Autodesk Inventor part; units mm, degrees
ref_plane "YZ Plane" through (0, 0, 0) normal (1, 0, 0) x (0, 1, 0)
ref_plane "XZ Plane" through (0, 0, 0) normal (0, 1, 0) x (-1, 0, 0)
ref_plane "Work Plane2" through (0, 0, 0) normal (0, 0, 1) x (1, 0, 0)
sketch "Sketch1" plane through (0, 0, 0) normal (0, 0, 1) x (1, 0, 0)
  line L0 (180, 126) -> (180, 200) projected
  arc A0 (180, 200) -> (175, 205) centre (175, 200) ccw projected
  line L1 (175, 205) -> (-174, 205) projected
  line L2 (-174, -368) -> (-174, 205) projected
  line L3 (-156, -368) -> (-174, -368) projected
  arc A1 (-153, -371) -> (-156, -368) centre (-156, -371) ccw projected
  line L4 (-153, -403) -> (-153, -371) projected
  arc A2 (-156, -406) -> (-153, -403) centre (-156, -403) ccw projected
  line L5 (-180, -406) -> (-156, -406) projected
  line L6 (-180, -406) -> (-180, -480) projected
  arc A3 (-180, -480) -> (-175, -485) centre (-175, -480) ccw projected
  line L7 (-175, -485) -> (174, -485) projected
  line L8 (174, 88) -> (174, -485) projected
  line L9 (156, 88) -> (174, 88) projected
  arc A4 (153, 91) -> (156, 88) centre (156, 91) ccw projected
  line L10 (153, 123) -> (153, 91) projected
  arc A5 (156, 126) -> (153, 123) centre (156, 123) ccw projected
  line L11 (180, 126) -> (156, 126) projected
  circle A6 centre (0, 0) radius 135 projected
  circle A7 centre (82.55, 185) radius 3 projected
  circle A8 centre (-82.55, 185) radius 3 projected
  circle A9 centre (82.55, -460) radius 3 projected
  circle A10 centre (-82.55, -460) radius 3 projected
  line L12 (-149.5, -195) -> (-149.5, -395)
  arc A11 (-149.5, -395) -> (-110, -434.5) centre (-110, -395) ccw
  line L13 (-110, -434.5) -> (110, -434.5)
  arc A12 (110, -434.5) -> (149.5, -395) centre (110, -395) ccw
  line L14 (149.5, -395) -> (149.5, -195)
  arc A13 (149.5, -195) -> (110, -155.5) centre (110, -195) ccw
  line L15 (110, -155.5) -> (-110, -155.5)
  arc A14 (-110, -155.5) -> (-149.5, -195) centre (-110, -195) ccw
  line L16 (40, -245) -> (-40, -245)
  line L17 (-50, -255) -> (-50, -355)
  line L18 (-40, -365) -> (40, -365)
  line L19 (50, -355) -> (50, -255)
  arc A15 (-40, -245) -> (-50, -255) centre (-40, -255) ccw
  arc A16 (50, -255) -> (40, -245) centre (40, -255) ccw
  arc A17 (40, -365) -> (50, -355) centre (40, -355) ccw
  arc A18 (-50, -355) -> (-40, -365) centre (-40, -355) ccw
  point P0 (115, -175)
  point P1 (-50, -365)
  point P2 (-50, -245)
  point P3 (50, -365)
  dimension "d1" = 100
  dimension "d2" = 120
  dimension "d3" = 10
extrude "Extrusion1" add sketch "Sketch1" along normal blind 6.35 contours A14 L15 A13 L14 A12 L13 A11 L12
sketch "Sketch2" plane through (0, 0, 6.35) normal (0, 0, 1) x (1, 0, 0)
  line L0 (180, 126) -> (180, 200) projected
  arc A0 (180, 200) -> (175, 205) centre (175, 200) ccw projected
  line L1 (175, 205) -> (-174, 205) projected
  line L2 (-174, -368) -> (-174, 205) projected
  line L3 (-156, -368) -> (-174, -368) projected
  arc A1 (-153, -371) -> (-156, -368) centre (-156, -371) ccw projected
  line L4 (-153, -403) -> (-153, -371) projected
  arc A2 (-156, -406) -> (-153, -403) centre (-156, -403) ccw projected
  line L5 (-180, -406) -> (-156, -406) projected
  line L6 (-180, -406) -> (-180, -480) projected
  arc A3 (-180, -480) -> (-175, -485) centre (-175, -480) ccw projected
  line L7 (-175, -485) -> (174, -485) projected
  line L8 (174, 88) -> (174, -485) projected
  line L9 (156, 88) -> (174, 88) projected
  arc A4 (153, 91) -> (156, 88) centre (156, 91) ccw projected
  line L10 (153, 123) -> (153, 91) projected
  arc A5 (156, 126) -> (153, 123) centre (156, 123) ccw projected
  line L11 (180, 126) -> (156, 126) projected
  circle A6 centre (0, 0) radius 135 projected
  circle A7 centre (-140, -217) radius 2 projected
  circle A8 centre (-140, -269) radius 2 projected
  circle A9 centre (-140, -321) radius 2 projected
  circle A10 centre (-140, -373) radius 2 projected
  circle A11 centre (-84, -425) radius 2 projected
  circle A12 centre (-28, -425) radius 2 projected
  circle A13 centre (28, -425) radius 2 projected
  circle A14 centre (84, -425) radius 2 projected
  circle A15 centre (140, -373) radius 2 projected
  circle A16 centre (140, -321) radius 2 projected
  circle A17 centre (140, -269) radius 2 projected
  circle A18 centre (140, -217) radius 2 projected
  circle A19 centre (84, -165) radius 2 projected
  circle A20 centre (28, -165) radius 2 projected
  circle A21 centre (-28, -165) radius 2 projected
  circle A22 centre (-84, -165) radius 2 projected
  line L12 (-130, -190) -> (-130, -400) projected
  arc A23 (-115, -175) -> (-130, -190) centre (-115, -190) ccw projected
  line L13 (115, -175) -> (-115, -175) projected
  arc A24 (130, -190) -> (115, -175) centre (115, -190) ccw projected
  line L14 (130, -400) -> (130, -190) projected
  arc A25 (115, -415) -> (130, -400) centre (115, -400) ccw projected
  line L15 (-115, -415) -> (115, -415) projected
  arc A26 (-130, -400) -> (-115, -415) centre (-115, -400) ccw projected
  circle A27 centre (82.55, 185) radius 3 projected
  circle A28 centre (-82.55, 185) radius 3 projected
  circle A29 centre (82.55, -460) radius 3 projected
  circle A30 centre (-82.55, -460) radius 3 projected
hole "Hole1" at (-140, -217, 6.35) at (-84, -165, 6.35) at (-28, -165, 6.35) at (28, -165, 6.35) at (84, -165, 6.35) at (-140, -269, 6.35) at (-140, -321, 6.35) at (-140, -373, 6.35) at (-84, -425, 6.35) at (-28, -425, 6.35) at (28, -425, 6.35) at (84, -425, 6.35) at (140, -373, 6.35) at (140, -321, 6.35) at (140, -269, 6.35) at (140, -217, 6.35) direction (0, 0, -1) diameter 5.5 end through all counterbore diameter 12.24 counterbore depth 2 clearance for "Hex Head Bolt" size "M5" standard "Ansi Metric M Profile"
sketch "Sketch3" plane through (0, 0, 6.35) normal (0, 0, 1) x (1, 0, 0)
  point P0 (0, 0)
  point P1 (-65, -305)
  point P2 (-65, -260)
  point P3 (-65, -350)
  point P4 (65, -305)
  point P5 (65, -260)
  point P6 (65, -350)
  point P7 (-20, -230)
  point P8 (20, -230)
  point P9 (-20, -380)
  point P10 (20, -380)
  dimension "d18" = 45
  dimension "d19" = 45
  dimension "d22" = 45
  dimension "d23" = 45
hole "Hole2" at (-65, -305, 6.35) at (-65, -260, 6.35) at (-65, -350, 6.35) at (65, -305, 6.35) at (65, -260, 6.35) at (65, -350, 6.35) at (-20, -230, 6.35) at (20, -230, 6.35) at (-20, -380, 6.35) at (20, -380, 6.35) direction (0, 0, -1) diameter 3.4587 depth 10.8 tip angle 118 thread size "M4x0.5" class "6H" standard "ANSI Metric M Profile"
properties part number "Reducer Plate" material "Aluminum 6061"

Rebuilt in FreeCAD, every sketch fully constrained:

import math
import FreeCAD as App
import Part
import Sketcher

V = App.Vector

doc = App.newDocument("Part")
body = doc.addObject("PartDesign::Body", "Body")

# Sketch on XY plane
sketch1 = body.newObject("Sketcher::SketchObject", "Sketch")
sketch1.AttachmentSupport = (doc.getObject("XY_Plane"), [""])
sketch1.MapMode = "FlatFace"
sketch1.addGeometry(Part.ArcOfCircle(Part.Circle(V(-110, -195, 0), V(0, 0, 1), 39.5), math.radians(90), math.radians(180)), False)
sketch1.addGeometry(Part.LineSegment(V(-149.5, -195, 0), V(-149.5, -395, 0)), False)
sketch1.addGeometry(Part.ArcOfCircle(Part.Circle(V(-110, -395, 0), V(0, 0, 1), 39.5), math.radians(180), math.radians(270)), False)
sketch1.addGeometry(Part.LineSegment(V(-110, -434.5, 0), V(110, -434.5, 0)), False)
sketch1.addGeometry(Part.ArcOfCircle(Part.Circle(V(110, -395, 0), V(0, 0, 1), 39.5), math.radians(-90), math.radians(0)), False)
sketch1.addGeometry(Part.LineSegment(V(149.5, -395, 0), V(149.5, -195, 0)), False)
sketch1.addGeometry(Part.ArcOfCircle(Part.Circle(V(110, -195, 0), V(0, 0, 1), 39.5), math.radians(0), math.radians(90)), False)
sketch1.addGeometry(Part.LineSegment(V(110, -155.5, 0), V(-110, -155.5, 0)), False)
sketch1.addGeometry(Part.LineSegment(V(-40, -245, 0), V(40, -245, 0)), False)
sketch1.addGeometry(Part.ArcOfCircle(Part.Circle(V(40, -255, 0), V(0, 0, 1), 10), math.radians(0), math.radians(90)), False)
sketch1.addGeometry(Part.LineSegment(V(50, -255, 0), V(50, -355, 0)), False)
sketch1.addGeometry(Part.ArcOfCircle(Part.Circle(V(40, -355, 0), V(0, 0, 1), 10), math.radians(-90), math.radians(0)), False)
sketch1.addGeometry(Part.LineSegment(V(40, -365, 0), V(-40, -365, 0)), False)
sketch1.addGeometry(Part.ArcOfCircle(Part.Circle(V(-40, -355, 0), V(0, 0, 1), 10), math.radians(180), math.radians(270)), False)
sketch1.addGeometry(Part.LineSegment(V(-50, -355, 0), V(-50, -255, 0)), False)
sketch1.addGeometry(Part.ArcOfCircle(Part.Circle(V(-40, -255, 0), V(0, 0, 1), 10), math.radians(90), math.radians(180)), False)
sketch1.addConstraint(Sketcher.Constraint("Tangent", 0, 2, 1, 1))
sketch1.addConstraint(Sketcher.Constraint("Tangent", 1, 2, 2, 1))
sketch1.addConstraint(Sketcher.Constraint("Tangent", 2, 2, 3, 1))
sketch1.addConstraint(Sketcher.Constraint("Tangent", 3, 2, 4, 1))
sketch1.addConstraint(Sketcher.Constraint("Tangent", 4, 2, 5, 1))
sketch1.addConstraint(Sketcher.Constraint("Tangent", 5, 2, 6, 1))
sketch1.addConstraint(Sketcher.Constraint("Tangent", 6, 2, 7, 1))
sketch1.addConstraint(Sketcher.Constraint("Tangent", 7, 2, 0, 1))
sketch1.addConstraint(Sketcher.Constraint("Tangent", 8, 2, 9, 2))
sketch1.addConstraint(Sketcher.Constraint("Tangent", 9, 1, 10, 1))
sketch1.addConstraint(Sketcher.Constraint("Tangent", 10, 2, 11, 2))
sketch1.addConstraint(Sketcher.Constraint("Tangent", 11, 1, 12, 1))
sketch1.addConstraint(Sketcher.Constraint("Tangent", 12, 2, 13, 2))
sketch1.addConstraint(Sketcher.Constraint("Tangent", 13, 1, 14, 1))
sketch1.addConstraint(Sketcher.Constraint("Tangent", 14, 2, 15, 2))
sketch1.addConstraint(Sketcher.Constraint("Tangent", 15, 1, 8, 1))
sketch1.addConstraint(Sketcher.Constraint("Vertical", 1))
sketch1.addConstraint(Sketcher.Constraint("Horizontal", 3))
sketch1.addConstraint(Sketcher.Constraint("Vertical", 5))
sketch1.addConstraint(Sketcher.Constraint("Horizontal", 7))
sketch1.addConstraint(Sketcher.Constraint("Horizontal", 8))
sketch1.addConstraint(Sketcher.Constraint("Vertical", 10))
sketch1.addConstraint(Sketcher.Constraint("Horizontal", 12))
sketch1.addConstraint(Sketcher.Constraint("Vertical", 14))
sketch1.addConstraint(Sketcher.Constraint("Equal", 0, 2))
sketch1.addConstraint(Sketcher.Constraint("Equal", 2, 4))
sketch1.addConstraint(Sketcher.Constraint("Equal", 4, 6))
sketch1.addConstraint(Sketcher.Constraint("Equal", 9, 11))
sketch1.addConstraint(Sketcher.Constraint("Equal", 11, 13))
sketch1.addConstraint(Sketcher.Constraint("Equal", 13, 15))
sketch1.addConstraint(Sketcher.Constraint("Radius", 9, 10.0))
sketch1.addConstraint(Sketcher.Constraint("DistanceY", 10, 2, 10, 1, 100.0))
sketch1.addConstraint(Sketcher.Constraint("DistanceX", 14, 2, 9, 1, 100.0))
sketch1.addConstraint(Sketcher.Constraint("Radius", 0, 39.5))
sketch1.addConstraint(Sketcher.Constraint("DistanceX", 3, 1, 3, 2, 220.0))
sketch1.addConstraint(Sketcher.Constraint("DistanceY", 1, 2, 1, 1, 200.0))
sketch1.addConstraint(Sketcher.Constraint("DistanceX", 0, 3, -1, 1, 110.0))
sketch1.addConstraint(Sketcher.Constraint("DistanceY", 0, 3, -1, 1, 195.0))
sketch1.addConstraint(Sketcher.Constraint("DistanceX", -1, 1, 9, 3, 40.0))
sketch1.addConstraint(Sketcher.Constraint("DistanceY", 9, 3, -1, 1, 255.0))
pad1 = body.newObject("PartDesign::Pad", "Pad")
pad1.Profile = sketch1
pad1.Length = 6.35

# Sketch on XY plane
sketch2 = body.newObject("Sketcher::SketchObject", "Sketch001")
sketch2.AttachmentSupport = (doc.getObject("XY_Plane"), [""])
sketch2.MapMode = "FlatFace"
sketch2.AttachmentOffset = App.Placement(V(0, 0, 6.35), App.Rotation())
sketch2.addGeometry(Part.Circle(V(-140, -217, 0), V(0, 0, 1), 2.75), False)
sketch2.addGeometry(Part.Circle(V(-84, -165, 0), V(0, 0, 1), 2.75), False)
sketch2.addGeometry(Part.Circle(V(-28, -165, 0), V(0, 0, 1), 2.75), False)
sketch2.addGeometry(Part.Circle(V(28, -165, 0), V(0, 0, 1), 2.75), False)
sketch2.addGeometry(Part.Circle(V(84, -165, 0), V(0, 0, 1), 2.75), False)
sketch2.addGeometry(Part.Circle(V(-140, -269, 0), V(0, 0, 1), 2.75), False)
sketch2.addGeometry(Part.Circle(V(-140, -321, 0), V(0, 0, 1), 2.75), False)
sketch2.addGeometry(Part.Circle(V(-140, -373, 0), V(0, 0, 1), 2.75), False)
sketch2.addGeometry(Part.Circle(V(-84, -425, 0), V(0, 0, 1), 2.75), False)
sketch2.addGeometry(Part.Circle(V(-28, -425, 0), V(0, 0, 1), 2.75), False)
sketch2.addGeometry(Part.Circle(V(28, -425, 0), V(0, 0, 1), 2.75), False)
sketch2.addGeometry(Part.Circle(V(84, -425, 0), V(0, 0, 1), 2.75), False)
sketch2.addGeometry(Part.Circle(V(140, -373, 0), V(0, 0, 1), 2.75), False)
sketch2.addGeometry(Part.Circle(V(140, -321, 0), V(0, 0, 1), 2.75), False)
sketch2.addGeometry(Part.Circle(V(140, -269, 0), V(0, 0, 1), 2.75), False)
sketch2.addGeometry(Part.Circle(V(140, -217, 0), V(0, 0, 1), 2.75), False)
sketch2.addConstraint(Sketcher.Constraint("Equal", 0, 1))
sketch2.addConstraint(Sketcher.Constraint("Equal", 1, 2))
sketch2.addConstraint(Sketcher.Constraint("Equal", 2, 3))
sketch2.addConstraint(Sketcher.Constraint("Equal", 3, 4))
sketch2.addConstraint(Sketcher.Constraint("Equal", 4, 5))
sketch2.addConstraint(Sketcher.Constraint("Equal", 5, 6))
sketch2.addConstraint(Sketcher.Constraint("Equal", 6, 7))
sketch2.addConstraint(Sketcher.Constraint("Equal", 7, 8))
sketch2.addConstraint(Sketcher.Constraint("Equal", 8, 9))
sketch2.addConstraint(Sketcher.Constraint("Equal", 9, 10))
sketch2.addConstraint(Sketcher.Constraint("Equal", 10, 11))
sketch2.addConstraint(Sketcher.Constraint("Equal", 11, 12))
sketch2.addConstraint(Sketcher.Constraint("Equal", 12, 13))
sketch2.addConstraint(Sketcher.Constraint("Equal", 13, 14))
sketch2.addConstraint(Sketcher.Constraint("Equal", 14, 15))
sketch2.addConstraint(Sketcher.Constraint("Symmetric", 2, 3, 3, 3, -2))
sketch2.addConstraint(Sketcher.Constraint("Symmetric", 1, 3, 4, 3, -2))
sketch2.addConstraint(Sketcher.Constraint("Symmetric", 9, 3, 10, 3, -2))
sketch2.addConstraint(Sketcher.Constraint("Symmetric", 8, 3, 11, 3, -2))
sketch2.addConstraint(Sketcher.Constraint("Symmetric", 7, 3, 12, 3, -2))
sketch2.addConstraint(Sketcher.Constraint("Symmetric", 6, 3, 13, 3, -2))
sketch2.addConstraint(Sketcher.Constraint("Symmetric", 5, 3, 14, 3, -2))
sketch2.addConstraint(Sketcher.Constraint("Symmetric", 0, 3, 15, 3, -2))
sketch2.addConstraint(Sketcher.Constraint("Horizontal", 1, 3, 2, 3))
sketch2.addConstraint(Sketcher.Constraint("Horizontal", 8, 3, 9, 3))
sketch2.addConstraint(Sketcher.Constraint("Vertical", 0, 3, 5, 3))
sketch2.addConstraint(Sketcher.Constraint("Vertical", 5, 3, 6, 3))
sketch2.addConstraint(Sketcher.Constraint("Vertical", 6, 3, 7, 3))
sketch2.addConstraint(Sketcher.Constraint("Vertical", 1, 3, 8, 3))
sketch2.addConstraint(Sketcher.Constraint("Vertical", 2, 3, 9, 3))
sketch2.addConstraint(Sketcher.Constraint("Diameter", 0, 5.5))
sketch2.addConstraint(Sketcher.Constraint("DistanceX", 0, 3, -1, 1, 140.0))
sketch2.addConstraint(Sketcher.Constraint("DistanceY", 0, 3, -1, 1, 217.0))
sketch2.addConstraint(Sketcher.Constraint("DistanceX", 1, 3, -1, 1, 84.0))
sketch2.addConstraint(Sketcher.Constraint("DistanceY", 1, 3, -1, 1, 165.0))
sketch2.addConstraint(Sketcher.Constraint("DistanceX", 2, 3, -1, 1, 28.0))
sketch2.addConstraint(Sketcher.Constraint("DistanceY", 5, 3, -1, 1, 269.0))
sketch2.addConstraint(Sketcher.Constraint("DistanceY", 6, 3, -1, 1, 321.0))
sketch2.addConstraint(Sketcher.Constraint("DistanceY", 7, 3, -1, 1, 373.0))
sketch2.addConstraint(Sketcher.Constraint("DistanceY", 8, 3, -1, 1, 425.0))
doc.recompute()
hole = body.newObject("PartDesign::Hole", "Hole")
hole.Profile = sketch2
hole.ThreadType = "None"
hole.Diameter = 5.5
hole.DepthType = "ThroughAll"
hole.HoleCutType = "Counterbore"
hole.HoleCutDiameter = 12.24
hole.HoleCutDepth = 2

# Sketch on XY plane
sketch3 = body.newObject("Sketcher::SketchObject", "Sketch002")
sketch3.AttachmentSupport = (doc.getObject("XY_Plane"), [""])
sketch3.MapMode = "FlatFace"
sketch3.AttachmentOffset = App.Placement(V(0, 0, 6.35), App.Rotation())
sketch3.addGeometry(Part.Circle(V(-65, -305, 0), V(0, 0, 1), 1.72935), False)
sketch3.addGeometry(Part.Circle(V(-65, -260, 0), V(0, 0, 1), 1.72935), False)
sketch3.addGeometry(Part.Circle(V(-65, -350, 0), V(0, 0, 1), 1.72935), False)
sketch3.addGeometry(Part.Circle(V(65, -305, 0), V(0, 0, 1), 1.72935), False)
sketch3.addGeometry(Part.Circle(V(65, -260, 0), V(0, 0, 1), 1.72935), False)
sketch3.addGeometry(Part.Circle(V(65, -350, 0), V(0, 0, 1), 1.72935), False)
sketch3.addGeometry(Part.Circle(V(-20, -230, 0), V(0, 0, 1), 1.72935), False)
sketch3.addGeometry(Part.Circle(V(20, -230, 0), V(0, 0, 1), 1.72935), False)
sketch3.addGeometry(Part.Circle(V(-20, -380, 0), V(0, 0, 1), 1.72935), False)
sketch3.addGeometry(Part.Circle(V(20, -380, 0), V(0, 0, 1), 1.72935), False)
sketch3.addConstraint(Sketcher.Constraint("Equal", 0, 1))
sketch3.addConstraint(Sketcher.Constraint("Equal", 1, 2))
sketch3.addConstraint(Sketcher.Constraint("Equal", 2, 3))
sketch3.addConstraint(Sketcher.Constraint("Equal", 3, 4))
sketch3.addConstraint(Sketcher.Constraint("Equal", 4, 5))
sketch3.addConstraint(Sketcher.Constraint("Equal", 5, 6))
sketch3.addConstraint(Sketcher.Constraint("Equal", 6, 7))
sketch3.addConstraint(Sketcher.Constraint("Equal", 7, 8))
sketch3.addConstraint(Sketcher.Constraint("Equal", 8, 9))
sketch3.addConstraint(Sketcher.Constraint("Symmetric", 0, 3, 3, 3, -2))
sketch3.addConstraint(Sketcher.Constraint("Symmetric", 1, 3, 4, 3, -2))
sketch3.addConstraint(Sketcher.Constraint("Symmetric", 2, 3, 5, 3, -2))
sketch3.addConstraint(Sketcher.Constraint("Symmetric", 6, 3, 7, 3, -2))
sketch3.addConstraint(Sketcher.Constraint("Symmetric", 8, 3, 9, 3, -2))
sketch3.addConstraint(Sketcher.Constraint("Vertical", 0, 3, 1, 3))
sketch3.addConstraint(Sketcher.Constraint("Vertical", 1, 3, 2, 3))
sketch3.addConstraint(Sketcher.Constraint("Vertical", 6, 3, 8, 3))
sketch3.addConstraint(Sketcher.Constraint("DistanceX", 0, 3, -1, 1, 65.0))
sketch3.addConstraint(Sketcher.Constraint("DistanceY", 0, 3, -1, 1, 305.0))
sketch3.addConstraint(Sketcher.Constraint("DistanceY", 1, 3, -1, 1, 260.0))
sketch3.addConstraint(Sketcher.Constraint("DistanceY", 2, 3, -1, 1, 350.0))
sketch3.addConstraint(Sketcher.Constraint("DistanceX", 6, 3, -1, 1, 20.0))
sketch3.addConstraint(Sketcher.Constraint("DistanceY", 6, 3, -1, 1, 230.0))
sketch3.addConstraint(Sketcher.Constraint("DistanceY", 8, 3, -1, 1, 380.0))
sketch3.addConstraint(Sketcher.Constraint("Diameter", 0, 3.4587))
doc.recompute()
hole2 = body.newObject("PartDesign::Hole", "Hole001")
hole2.Profile = sketch3
hole2.ThreadType = "None"
hole2.Diameter = 3.4587
hole2.DepthType = "Dimension"
hole2.Depth = 10.8
hole2.DrillPoint = "Angled"
hole2.DrillPointAngle = 118

doc.recompute()
